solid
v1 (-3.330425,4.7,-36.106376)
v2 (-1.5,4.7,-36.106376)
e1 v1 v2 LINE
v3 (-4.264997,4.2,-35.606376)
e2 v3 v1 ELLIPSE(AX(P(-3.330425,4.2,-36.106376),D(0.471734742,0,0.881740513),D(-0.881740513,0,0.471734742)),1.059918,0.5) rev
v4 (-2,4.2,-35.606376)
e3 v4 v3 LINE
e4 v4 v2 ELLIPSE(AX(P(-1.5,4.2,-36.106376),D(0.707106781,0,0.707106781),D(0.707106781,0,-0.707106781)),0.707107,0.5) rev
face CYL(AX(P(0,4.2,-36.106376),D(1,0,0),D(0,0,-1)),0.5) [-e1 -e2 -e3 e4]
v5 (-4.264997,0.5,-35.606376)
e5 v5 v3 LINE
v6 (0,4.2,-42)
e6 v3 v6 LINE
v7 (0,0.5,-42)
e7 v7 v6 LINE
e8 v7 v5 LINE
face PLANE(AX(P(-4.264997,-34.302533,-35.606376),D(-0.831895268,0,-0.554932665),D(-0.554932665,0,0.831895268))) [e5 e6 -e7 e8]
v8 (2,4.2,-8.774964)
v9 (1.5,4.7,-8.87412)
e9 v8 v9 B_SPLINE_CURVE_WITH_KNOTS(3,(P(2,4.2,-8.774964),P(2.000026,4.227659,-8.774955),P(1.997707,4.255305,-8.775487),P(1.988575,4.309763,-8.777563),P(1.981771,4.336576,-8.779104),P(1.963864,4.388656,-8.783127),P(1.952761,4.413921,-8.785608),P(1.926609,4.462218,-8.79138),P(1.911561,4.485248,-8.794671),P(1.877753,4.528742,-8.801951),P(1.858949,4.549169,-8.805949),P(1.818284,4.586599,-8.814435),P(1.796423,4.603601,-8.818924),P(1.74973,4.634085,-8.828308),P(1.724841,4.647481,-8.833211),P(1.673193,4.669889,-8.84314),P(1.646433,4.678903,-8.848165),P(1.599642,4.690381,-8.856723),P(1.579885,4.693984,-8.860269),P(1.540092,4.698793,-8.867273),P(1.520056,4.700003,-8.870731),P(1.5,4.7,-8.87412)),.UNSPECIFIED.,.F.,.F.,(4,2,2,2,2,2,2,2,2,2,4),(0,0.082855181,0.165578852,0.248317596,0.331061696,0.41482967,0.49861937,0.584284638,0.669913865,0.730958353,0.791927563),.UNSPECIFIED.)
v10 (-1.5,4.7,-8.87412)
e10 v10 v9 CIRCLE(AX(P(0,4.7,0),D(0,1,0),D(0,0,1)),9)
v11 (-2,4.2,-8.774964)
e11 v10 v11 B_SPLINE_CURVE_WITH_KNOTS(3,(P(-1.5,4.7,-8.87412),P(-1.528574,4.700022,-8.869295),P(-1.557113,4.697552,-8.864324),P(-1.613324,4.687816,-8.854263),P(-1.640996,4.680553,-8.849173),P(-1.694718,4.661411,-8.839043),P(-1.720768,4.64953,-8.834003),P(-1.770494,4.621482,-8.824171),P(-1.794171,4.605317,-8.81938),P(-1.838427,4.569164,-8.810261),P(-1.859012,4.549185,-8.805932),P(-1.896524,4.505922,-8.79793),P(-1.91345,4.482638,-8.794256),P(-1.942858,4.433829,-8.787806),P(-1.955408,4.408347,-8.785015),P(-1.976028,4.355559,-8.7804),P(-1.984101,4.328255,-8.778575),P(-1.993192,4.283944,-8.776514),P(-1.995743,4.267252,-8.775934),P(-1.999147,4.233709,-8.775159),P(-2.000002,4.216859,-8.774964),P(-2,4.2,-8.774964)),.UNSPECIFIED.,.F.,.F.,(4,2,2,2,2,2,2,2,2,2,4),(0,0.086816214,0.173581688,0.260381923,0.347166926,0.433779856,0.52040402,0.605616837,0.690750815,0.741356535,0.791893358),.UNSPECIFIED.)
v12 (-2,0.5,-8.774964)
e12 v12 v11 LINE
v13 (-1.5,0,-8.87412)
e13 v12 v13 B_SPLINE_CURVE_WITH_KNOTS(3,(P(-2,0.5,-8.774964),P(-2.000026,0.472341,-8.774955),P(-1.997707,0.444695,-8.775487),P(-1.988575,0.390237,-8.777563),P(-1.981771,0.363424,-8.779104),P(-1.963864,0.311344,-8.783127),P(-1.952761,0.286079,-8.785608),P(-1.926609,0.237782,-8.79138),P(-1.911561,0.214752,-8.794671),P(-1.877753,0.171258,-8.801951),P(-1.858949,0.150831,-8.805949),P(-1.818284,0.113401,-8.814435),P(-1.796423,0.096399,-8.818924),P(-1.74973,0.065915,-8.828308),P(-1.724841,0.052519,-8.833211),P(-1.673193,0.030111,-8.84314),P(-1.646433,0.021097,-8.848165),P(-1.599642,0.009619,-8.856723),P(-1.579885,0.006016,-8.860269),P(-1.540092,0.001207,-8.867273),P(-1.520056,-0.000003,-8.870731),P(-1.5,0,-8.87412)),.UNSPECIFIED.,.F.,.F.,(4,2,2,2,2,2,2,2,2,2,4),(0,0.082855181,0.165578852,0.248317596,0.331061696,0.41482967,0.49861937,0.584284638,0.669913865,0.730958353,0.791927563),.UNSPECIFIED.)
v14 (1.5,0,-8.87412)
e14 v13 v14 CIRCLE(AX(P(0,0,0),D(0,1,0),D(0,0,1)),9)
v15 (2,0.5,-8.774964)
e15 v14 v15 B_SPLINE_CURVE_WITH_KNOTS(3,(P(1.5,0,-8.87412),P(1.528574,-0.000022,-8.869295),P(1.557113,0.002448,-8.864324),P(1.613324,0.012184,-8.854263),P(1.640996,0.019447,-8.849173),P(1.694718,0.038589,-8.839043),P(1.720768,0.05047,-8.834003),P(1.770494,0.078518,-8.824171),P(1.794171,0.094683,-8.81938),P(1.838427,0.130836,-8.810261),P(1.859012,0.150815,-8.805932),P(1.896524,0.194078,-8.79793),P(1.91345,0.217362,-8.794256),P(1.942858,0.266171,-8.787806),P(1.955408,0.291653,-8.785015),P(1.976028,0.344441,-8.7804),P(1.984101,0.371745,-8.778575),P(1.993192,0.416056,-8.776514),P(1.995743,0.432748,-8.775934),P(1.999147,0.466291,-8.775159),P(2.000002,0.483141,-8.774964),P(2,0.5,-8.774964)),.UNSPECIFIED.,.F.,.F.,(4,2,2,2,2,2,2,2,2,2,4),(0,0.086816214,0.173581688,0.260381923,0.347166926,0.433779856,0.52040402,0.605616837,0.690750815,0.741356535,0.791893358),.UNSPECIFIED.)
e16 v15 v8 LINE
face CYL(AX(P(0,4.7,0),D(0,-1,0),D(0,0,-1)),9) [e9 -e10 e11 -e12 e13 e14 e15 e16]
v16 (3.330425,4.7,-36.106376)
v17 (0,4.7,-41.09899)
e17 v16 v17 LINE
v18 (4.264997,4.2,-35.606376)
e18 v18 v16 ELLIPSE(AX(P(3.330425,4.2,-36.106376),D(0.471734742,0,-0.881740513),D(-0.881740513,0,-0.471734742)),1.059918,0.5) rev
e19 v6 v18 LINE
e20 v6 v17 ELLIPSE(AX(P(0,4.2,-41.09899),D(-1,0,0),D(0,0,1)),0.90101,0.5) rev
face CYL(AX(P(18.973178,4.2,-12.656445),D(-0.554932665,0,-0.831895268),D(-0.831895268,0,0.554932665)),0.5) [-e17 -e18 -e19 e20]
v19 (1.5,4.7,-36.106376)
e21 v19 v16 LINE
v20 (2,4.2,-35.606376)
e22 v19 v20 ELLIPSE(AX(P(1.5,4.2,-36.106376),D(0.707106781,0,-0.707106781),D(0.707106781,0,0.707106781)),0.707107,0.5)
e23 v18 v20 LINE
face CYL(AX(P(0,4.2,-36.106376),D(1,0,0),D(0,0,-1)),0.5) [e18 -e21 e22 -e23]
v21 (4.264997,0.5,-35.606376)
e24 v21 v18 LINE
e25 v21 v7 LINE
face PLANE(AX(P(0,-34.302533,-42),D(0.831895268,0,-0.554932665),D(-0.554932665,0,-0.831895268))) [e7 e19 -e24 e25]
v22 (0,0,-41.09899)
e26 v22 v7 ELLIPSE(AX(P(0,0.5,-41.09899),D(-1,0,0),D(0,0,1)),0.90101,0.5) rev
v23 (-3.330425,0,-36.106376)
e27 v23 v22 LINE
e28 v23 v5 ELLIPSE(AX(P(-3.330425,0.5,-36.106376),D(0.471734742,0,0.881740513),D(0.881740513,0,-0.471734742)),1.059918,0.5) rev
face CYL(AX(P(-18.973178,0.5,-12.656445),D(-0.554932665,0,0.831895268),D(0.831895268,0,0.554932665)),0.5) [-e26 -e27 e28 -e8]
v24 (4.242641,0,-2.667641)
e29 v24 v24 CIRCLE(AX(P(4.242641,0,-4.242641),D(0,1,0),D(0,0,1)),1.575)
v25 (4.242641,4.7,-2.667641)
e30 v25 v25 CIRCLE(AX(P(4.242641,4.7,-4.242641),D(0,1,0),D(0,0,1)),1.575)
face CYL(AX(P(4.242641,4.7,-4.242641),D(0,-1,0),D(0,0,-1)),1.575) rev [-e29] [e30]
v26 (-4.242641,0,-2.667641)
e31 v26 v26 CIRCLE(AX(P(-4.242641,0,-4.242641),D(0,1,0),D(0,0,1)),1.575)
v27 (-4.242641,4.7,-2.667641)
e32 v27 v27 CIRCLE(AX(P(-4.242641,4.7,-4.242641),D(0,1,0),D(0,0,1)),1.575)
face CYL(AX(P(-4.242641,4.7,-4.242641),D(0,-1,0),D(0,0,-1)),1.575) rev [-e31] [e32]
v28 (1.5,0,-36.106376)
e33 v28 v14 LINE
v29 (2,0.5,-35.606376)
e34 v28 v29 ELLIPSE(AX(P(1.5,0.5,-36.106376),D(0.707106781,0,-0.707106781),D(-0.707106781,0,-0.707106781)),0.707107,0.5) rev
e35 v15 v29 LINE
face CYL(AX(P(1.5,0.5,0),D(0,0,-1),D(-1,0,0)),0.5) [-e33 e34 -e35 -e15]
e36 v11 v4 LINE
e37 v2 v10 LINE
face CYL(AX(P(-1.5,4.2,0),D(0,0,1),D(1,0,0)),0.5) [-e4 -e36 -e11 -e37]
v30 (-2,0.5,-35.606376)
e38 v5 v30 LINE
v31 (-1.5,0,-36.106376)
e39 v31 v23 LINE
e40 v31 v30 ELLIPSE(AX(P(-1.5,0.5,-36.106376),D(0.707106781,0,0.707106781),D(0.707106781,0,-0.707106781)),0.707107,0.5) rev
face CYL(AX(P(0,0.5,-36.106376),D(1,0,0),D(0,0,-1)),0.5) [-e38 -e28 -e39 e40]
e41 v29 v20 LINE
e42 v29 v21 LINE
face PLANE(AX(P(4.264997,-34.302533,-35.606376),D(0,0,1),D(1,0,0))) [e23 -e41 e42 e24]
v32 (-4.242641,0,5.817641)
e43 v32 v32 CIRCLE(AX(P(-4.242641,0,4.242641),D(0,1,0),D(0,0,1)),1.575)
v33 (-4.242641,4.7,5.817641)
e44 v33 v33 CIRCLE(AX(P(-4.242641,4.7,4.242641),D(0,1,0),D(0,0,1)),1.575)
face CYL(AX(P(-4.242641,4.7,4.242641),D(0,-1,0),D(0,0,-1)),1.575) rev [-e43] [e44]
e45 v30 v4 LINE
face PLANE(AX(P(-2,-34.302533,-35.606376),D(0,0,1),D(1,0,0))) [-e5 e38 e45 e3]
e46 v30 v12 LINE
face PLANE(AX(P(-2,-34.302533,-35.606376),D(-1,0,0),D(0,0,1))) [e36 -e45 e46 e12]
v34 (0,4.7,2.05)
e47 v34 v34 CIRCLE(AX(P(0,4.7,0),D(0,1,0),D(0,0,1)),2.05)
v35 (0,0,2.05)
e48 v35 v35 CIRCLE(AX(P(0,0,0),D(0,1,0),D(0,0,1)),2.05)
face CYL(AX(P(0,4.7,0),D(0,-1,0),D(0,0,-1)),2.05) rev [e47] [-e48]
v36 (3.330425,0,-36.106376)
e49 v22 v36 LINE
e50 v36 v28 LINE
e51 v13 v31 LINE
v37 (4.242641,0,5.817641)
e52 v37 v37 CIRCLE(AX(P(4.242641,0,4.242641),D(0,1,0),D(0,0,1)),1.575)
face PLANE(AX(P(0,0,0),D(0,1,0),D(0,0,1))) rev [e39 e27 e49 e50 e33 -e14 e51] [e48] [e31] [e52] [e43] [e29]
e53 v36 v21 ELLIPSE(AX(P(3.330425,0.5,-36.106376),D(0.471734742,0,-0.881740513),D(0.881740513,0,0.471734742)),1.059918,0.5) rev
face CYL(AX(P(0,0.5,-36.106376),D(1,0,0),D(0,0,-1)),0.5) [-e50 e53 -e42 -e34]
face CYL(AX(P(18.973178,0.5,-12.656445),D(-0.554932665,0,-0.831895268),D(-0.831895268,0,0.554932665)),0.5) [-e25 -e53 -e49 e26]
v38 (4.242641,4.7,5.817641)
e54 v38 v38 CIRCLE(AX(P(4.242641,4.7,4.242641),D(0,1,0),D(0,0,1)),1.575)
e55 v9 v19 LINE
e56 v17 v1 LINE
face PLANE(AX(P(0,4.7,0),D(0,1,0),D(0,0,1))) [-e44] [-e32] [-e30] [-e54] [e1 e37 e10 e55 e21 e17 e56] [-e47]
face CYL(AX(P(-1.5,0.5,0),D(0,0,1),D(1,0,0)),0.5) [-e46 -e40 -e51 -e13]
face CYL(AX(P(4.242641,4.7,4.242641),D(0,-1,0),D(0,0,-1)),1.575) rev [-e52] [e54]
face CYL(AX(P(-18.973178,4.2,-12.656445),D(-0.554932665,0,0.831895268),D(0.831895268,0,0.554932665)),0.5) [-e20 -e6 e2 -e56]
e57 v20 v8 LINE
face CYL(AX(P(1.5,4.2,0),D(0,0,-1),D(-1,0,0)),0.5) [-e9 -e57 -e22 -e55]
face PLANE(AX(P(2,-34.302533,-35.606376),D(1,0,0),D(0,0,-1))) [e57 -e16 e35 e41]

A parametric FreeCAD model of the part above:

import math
import FreeCAD as App
import Part
import Sketcher
from FreeCAD import Vector
Q = App.Units.Quantity


def edges_at(feature, points):
    """Names of the edges that pass closest to the given points."""
    edges = feature.Shape.Edges
    near = lambda p: min(range(len(edges)), key=lambda i: edges[i].distToShape(Part.Vertex(*p))[0])
    return sorted({f"Edge{near(p) + 1}" for p in points})

doc = App.newDocument("Part")
params = doc.addObject("Spreadsheet::Sheet", "Params")
for row, (alias, value) in enumerate([
    ("sketch1_diameter", "18 mm"),
    ("sketch1_diameter2", "4.1 mm"),
    ("sketch1_diameter3", "3.15 mm"),
    ("pad1_length", "4.7 mm"),
    ("sketch2_radius", "9 mm"),
    ("pad2_length", "4.7 mm"),
    ("fillet_radius", "0.5 mm"),
], start=1):
    params.set(f"A{row}", alias)
    params.set(f"B{row}", "=" + value)
    params.setAlias(f"B{row}", alias)

body = doc.addObject("PartDesign::Body", "Body")

sketch1 = body.newObject("Sketcher::SketchObject", "Sketch")
sketch1.AttachmentSupport = (doc.getObject("XZ_Plane"), [""])
sketch1.MapMode = "FlatFace"
sketch1.addGeometry([
    Part.Circle(Vector(0, 0, 0), Vector(0, 0, 1), 9),
    Part.Circle(Vector(-4.2, -4.2, 0), Vector(0, 0, 1), 1.6),
    Part.Circle(Vector(0, 0, 0), Vector(0, 0, 1), 2),
    Part.Circle(Vector(-4.2, 4.2, 0), Vector(0, 0, 1), 1.6),
    Part.Circle(Vector(4.2, -4.2, 0), Vector(0, 0, 1), 1.6),
    Part.Circle(Vector(4.2, 4.2, 0), Vector(0, 0, 1), 1.6),
], False)
sketch1.addConstraint([
    Sketcher.Constraint("Coincident", 0, 3, -1, 1),
    Sketcher.Constraint("Coincident", 2, 3, -1, 1),
    Sketcher.Constraint("Equal", 1, 3),
    Sketcher.Constraint("Equal", 3, 4),
    Sketcher.Constraint("Equal", 4, 5),
    Sketcher.Constraint("Symmetric", 3, 3, 4, 3, -1, 1),
    Sketcher.Constraint("Symmetric", 1, 3, 5, 3, -1, 1),
    Sketcher.Constraint("Symmetric", 1, 3, 4, 3, -2),
    Sketcher.Constraint("Diameter", 0, Q("18 mm")),
    Sketcher.Constraint("Diameter", 2, Q("4.1 mm")),
    Sketcher.Constraint("Diameter", 1, Q("3.15 mm")),
    Sketcher.Constraint("DistanceX", 1, 3, -1, 1, Q("4.242641 mm")),
    Sketcher.Constraint("DistanceY", 1, 3, -1, 1, Q("4.242641 mm")),
])
sketch1.setExpression("Constraints[8]", "Params.sketch1_diameter")
sketch1.setExpression("Constraints[9]", "Params.sketch1_diameter2")
sketch1.setExpression("Constraints[10]", "Params.sketch1_diameter3")
pad1 = body.newObject("PartDesign::Pad", "Pad")
pad1.Profile = sketch1
pad1.setExpression("Length", "Params.pad1_length")
pad1.Reversed = True

sketch2 = body.newObject("Sketcher::SketchObject", "Sketch001")
sketch2.AttachmentSupport = (doc.getObject("XZ_Plane"), [""])
sketch2.MapMode = "FlatFace"
sketch2.addGeometry([
    Part.LineSegment(Vector(-2, -35.6, 0), Vector(-2, -8.8, 0)),
    Part.ArcOfCircle(Part.Circle(Vector(0, 0, 0), Vector(0, 0, 1), 9), math.radians(-103), math.radians(-77)),
    Part.LineSegment(Vector(2, -8.8, 0), Vector(2, -35.6, 0)),
    Part.LineSegment(Vector(2, -35.6, 0), Vector(4.3, -35.6, 0)),
    Part.LineSegment(Vector(4.3, -35.6, 0), Vector(0, -42, 0)),
    Part.LineSegment(Vector(0, -42, 0), Vector(-4.3, -35.6, 0)),
    Part.LineSegment(Vector(-4.3, -35.6, 0), Vector(-2, -35.6, 0)),
], False)
sketch2.addConstraint([
    Sketcher.Constraint("Coincident", 0, 2, 1, 1),
    Sketcher.Constraint("Coincident", 1, 2, 2, 1),
    Sketcher.Constraint("Coincident", 2, 2, 3, 1),
    Sketcher.Constraint("Coincident", 3, 2, 4, 1),
    Sketcher.Constraint("Coincident", 4, 2, 5, 1),
    Sketcher.Constraint("Coincident", 5, 2, 6, 1),
    Sketcher.Constraint("Coincident", 6, 2, 0, 1),
    Sketcher.Constraint("Vertical", 0),
    Sketcher.Constraint("Vertical", 2),
    Sketcher.Constraint("Horizontal", 3),
    Sketcher.Constraint("Horizontal", 6),
    Sketcher.Constraint("Coincident", 1, 3, -1, 1),
    Sketcher.Constraint("Symmetric", 3, 2, 5, 2, -2),
    Sketcher.Constraint("PointOnObject", 4, 2, -2),
    Sketcher.Constraint("Horizontal", 0, 2, 1, 2),
    Sketcher.Constraint("Radius", 1, Q("9 mm")),
    Sketcher.Constraint("DistanceX", 0, 2, -1, 1, Q("2 mm")),
    Sketcher.Constraint("DistanceY", 4, 2, -1, 1, Q("42 mm")),
    Sketcher.Constraint("DistanceY", 0, 1, 0, 2, Q("26.831411 mm")),
    Sketcher.Constraint("Distance", 4, Q("7.685612 mm")),
])
sketch2.setExpression("Constraints[15]", "Params.sketch2_radius")
pad2 = body.newObject("PartDesign::Pad", "Pad001")
pad2.Profile = sketch2
pad2.setExpression("Length", "Params.pad2_length")
pad2.Reversed = True
doc.recompute()

fillet = body.newObject("PartDesign::Fillet", "Fillet")
fillet.Base = (pad2, edges_at(pad2, [
    (-3.132, 4.7, -35.606),
    (-2, 4.7, -22.191),
    (2, 4.7, -22.191),
    (3.132, 4.7, -35.606),
    (2.132, 4.7, -38.803),
    (-2.132, 4.7, -38.803),
    (-3.132, 0, -35.606),
    (-2.132, 0, -38.803),
    (2.132, 0, -38.803),
    (3.132, 0, -35.606),
    (2, 0, -22.191),
    (-2, 0, -22.191),
]))
fillet.setExpression("Radius", "Params.fillet_radius")

doc.recompute()
